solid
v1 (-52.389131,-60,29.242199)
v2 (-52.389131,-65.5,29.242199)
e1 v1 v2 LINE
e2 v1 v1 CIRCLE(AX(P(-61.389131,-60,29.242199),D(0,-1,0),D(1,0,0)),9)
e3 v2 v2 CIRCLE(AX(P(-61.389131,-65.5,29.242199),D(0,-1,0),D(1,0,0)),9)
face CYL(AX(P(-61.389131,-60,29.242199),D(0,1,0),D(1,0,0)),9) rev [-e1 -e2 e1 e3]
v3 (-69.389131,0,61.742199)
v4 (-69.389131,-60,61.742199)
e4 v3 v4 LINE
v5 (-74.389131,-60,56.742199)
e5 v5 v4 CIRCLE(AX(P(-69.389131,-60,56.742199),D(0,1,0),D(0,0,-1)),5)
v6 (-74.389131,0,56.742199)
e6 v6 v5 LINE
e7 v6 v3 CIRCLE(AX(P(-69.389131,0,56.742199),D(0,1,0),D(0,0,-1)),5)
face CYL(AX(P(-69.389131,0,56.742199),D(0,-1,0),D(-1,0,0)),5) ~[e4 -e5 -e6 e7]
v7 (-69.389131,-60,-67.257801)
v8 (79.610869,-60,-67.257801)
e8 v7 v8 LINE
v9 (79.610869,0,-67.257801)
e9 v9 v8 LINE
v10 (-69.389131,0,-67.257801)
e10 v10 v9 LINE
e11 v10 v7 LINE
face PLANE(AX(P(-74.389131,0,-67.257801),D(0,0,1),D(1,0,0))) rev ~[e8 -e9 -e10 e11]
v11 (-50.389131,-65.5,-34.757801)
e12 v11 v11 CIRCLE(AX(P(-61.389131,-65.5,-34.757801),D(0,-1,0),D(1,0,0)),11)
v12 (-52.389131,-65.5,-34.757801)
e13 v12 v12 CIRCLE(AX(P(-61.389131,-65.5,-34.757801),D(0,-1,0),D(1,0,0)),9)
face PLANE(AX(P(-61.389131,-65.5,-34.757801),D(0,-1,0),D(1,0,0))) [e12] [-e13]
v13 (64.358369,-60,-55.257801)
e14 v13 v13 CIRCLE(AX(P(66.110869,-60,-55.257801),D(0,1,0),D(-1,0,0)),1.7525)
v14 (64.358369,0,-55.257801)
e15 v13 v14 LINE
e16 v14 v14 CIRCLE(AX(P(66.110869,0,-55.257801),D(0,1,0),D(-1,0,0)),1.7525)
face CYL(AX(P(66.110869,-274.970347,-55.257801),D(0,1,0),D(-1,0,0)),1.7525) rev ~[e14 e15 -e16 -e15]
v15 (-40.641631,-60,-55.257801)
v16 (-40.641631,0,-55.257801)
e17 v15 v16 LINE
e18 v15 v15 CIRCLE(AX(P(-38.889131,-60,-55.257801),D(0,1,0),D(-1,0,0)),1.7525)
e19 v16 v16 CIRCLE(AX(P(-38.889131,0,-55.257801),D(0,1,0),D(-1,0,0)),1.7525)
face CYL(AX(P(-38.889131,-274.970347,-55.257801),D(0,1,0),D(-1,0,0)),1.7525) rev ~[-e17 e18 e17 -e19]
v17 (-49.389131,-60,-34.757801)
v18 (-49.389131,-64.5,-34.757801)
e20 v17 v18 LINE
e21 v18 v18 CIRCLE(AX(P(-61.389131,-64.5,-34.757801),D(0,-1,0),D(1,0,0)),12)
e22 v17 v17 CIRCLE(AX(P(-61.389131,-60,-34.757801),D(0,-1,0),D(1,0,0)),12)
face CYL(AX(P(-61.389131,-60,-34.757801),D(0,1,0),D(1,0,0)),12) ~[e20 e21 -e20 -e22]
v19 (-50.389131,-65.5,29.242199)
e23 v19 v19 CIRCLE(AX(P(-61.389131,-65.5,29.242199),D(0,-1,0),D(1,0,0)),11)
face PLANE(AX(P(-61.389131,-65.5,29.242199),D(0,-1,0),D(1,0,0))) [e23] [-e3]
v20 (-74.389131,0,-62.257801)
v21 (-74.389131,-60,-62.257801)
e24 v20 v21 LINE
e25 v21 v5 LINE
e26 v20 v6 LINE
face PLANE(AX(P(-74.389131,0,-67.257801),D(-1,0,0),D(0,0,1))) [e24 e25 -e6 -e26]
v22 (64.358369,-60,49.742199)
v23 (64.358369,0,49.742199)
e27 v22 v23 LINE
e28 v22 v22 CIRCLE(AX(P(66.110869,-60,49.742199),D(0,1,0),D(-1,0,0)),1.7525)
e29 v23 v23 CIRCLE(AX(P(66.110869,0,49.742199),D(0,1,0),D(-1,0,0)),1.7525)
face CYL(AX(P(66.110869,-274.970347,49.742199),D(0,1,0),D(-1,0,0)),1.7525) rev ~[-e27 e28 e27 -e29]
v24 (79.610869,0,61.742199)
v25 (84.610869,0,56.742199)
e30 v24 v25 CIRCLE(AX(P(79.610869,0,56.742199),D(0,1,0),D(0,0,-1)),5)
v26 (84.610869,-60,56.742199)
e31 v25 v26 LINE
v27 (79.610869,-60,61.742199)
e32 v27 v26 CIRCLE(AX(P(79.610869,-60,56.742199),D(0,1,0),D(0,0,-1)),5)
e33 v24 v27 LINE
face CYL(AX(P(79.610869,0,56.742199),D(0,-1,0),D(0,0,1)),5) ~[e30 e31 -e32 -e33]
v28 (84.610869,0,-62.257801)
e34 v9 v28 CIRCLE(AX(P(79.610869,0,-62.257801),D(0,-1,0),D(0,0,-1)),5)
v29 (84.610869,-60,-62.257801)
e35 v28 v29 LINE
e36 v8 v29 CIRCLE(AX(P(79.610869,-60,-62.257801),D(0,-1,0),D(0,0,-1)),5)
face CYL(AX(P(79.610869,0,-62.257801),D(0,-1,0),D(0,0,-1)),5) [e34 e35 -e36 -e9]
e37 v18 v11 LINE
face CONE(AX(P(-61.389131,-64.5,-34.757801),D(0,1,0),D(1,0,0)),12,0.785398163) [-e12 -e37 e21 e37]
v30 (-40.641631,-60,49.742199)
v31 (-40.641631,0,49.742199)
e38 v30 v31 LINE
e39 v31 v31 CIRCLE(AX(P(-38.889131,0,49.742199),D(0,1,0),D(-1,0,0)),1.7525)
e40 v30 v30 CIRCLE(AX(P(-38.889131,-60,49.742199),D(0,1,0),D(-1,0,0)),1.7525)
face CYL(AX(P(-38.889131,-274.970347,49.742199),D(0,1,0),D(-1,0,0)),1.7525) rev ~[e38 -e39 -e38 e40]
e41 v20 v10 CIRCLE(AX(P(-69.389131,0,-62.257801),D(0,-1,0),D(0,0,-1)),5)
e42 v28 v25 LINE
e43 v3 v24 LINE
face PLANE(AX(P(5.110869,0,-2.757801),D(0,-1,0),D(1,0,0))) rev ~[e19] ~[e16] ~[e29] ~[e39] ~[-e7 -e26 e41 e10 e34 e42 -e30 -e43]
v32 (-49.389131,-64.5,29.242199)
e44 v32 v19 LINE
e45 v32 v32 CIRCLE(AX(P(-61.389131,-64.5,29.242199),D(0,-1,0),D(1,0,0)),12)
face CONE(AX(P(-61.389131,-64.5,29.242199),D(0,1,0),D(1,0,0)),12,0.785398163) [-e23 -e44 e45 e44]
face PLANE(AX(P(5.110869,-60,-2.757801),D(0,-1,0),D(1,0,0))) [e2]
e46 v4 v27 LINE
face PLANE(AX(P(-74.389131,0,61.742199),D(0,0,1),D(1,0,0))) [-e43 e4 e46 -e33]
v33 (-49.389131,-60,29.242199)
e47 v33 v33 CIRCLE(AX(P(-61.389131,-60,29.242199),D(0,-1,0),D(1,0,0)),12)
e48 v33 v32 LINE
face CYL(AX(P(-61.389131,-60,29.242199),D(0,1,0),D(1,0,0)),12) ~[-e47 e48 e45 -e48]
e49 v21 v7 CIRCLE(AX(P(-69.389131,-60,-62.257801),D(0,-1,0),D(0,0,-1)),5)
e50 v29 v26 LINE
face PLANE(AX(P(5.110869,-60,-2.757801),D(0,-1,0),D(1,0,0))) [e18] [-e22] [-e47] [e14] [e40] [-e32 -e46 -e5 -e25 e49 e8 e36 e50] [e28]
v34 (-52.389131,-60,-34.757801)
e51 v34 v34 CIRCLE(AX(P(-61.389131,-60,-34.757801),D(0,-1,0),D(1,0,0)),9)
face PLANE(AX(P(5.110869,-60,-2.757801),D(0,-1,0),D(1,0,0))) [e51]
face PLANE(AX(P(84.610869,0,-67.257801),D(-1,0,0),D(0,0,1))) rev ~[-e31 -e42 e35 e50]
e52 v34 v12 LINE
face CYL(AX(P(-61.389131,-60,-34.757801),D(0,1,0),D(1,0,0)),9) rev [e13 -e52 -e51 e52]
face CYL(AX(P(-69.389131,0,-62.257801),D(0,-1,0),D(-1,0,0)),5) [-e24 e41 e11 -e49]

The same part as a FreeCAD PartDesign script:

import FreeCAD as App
import Part
import Sketcher

V = App.Vector


def edges_at(feature, points):
    """Names of the edges that pass closest to the given points."""
    edges = feature.Shape.Edges
    near = lambda p: min(range(len(edges)), key=lambda i: edges[i].distToShape(Part.Vertex(*p))[0])
    return sorted({f"Edge{near(p) + 1}" for p in points})


def add_polygon(sketch, points):
    """Adds a closed chain of lines whose ends are joined by coincident constraints."""
    first, n = sketch.GeometryCount, len(points)
    for a, b in zip(points, points[1:] + points[:1]):
        sketch.addGeometry(Part.LineSegment(App.Vector(*a, 0), App.Vector(*b, 0)), False)
    for i in range(n):
        sketch.addConstraint(Sketcher.Constraint("Coincident", first + i, 2, first + (i + 1) % n, 1))

doc = App.newDocument("Part")
params = doc.addObject("Spreadsheet::Sheet", "Params")
for row, (alias, value) in enumerate([
    ("sketch1_width", "159 mm"),
    ("sketch1_height", "129 mm"),
    ("pad1_length", "60 mm"),
    ("sketch2_diameter", "24 mm"),
    ("sketch2_diameter2", "18 mm"),
    ("pad2_length", "5.5 mm"),
    ("fillet_radius", "5 mm"),
    ("hole_diameter", "3.505 mm"),
    ("chamfer_size", "1 mm"),
], start=1):
    params.set(f"A{row}", alias)
    params.set(f"B{row}", "=" + value)
    params.setAlias(f"B{row}", alias)

body = doc.addObject("PartDesign::Body", "Body")

sketch1 = body.newObject("Sketcher::SketchObject", "Sketch")
sketch1.AttachmentSupport = (doc.getObject("XZ_Plane"), [""])
sketch1.MapMode = "FlatFace"
add_polygon(sketch1, [(-74, 62), (-74, -67), (85, -67), (85, 62)])
sketch1.addConstraint([
    Sketcher.Constraint("Vertical", 0),
    Sketcher.Constraint("Horizontal", 1),
    Sketcher.Constraint("Vertical", 2),
    Sketcher.Constraint("Horizontal", 3),
    Sketcher.Constraint("DistanceX", 1, 1, 1, 2, 159.0),
    Sketcher.Constraint("DistanceY", 0, 2, 0, 1, 129.0),
    Sketcher.Constraint("DistanceY", 0, 2, -1, 1, 67.257801),
    Sketcher.Constraint("DistanceX", 0, 2, -1, 1, 74.389131),
])
sketch1.setExpression("Constraints[8]", "Params.sketch1_width")
sketch1.setExpression("Constraints[9]", "Params.sketch1_height")
pad1 = body.newObject("PartDesign::Pad", "Pad")
pad1.Profile = sketch1
pad1.setExpression("Length", "Params.pad1_length")

sketch2 = body.newObject("Sketcher::SketchObject", "Sketch001")
sketch2.AttachmentSupport = (doc.getObject("XZ_Plane"), [""])
sketch2.MapMode = "FlatFace"
sketch2.AttachmentOffset = App.Placement(V(0, 0, 60), App.Rotation())
sketch2.addGeometry([
    Part.Circle(V(-61, 29, 0), V(0, 0, 1), 12),
    Part.Circle(V(-61, 29, 0), V(0, 0, 1), 9),
    Part.Circle(V(-61, -35, 0), V(0, 0, 1), 12),
    Part.Circle(V(-61, -35, 0), V(0, 0, 1), 9),
], False)
sketch2.addConstraint([
    Sketcher.Constraint("Coincident", 1, 3, 0, 3),
    Sketcher.Constraint("Coincident", 3, 3, 2, 3),
    Sketcher.Constraint("Equal", 0, 2),
    Sketcher.Constraint("Equal", 1, 3),
    Sketcher.Constraint("Vertical", 1, 3, 2, 3),
    Sketcher.Constraint("Diameter", 0, 24.0),
    Sketcher.Constraint("Diameter", 1, 18.0),
    Sketcher.Constraint("DistanceY", 2, 3, 0, 3, 64.0),
    Sketcher.Constraint("DistanceY", -1, 1, 0, 3, 29.242199),
    Sketcher.Constraint("DistanceX", 0, 3, -1, 1, 61.389131),
])
sketch2.setExpression("Constraints[5]", "Params.sketch2_diameter")
sketch2.setExpression("Constraints[6]", "Params.sketch2_diameter2")
pad2 = body.newObject("PartDesign::Pad", "Pad001")
pad2.Profile = sketch2
pad2.setExpression("Length", "Params.pad2_length")
doc.recompute()

fillet = body.newObject("PartDesign::Fillet", "Fillet")
fillet.Base = (pad2, edges_at(pad2, [
    (84.611, -30, -67.258),
    (84.611, -30, 61.742),
    (-74.389, -30, 61.742),
    (-74.389, -30, -67.258),
]))
fillet.setExpression("Radius", "Params.fillet_radius")

sketch3 = body.newObject("Sketcher::SketchObject", "Sketch002")
sketch3.AttachmentSupport = (doc.getObject("XZ_Plane"), [""])
sketch3.MapMode = "FlatFace"
sketch3.AttachmentOffset = App.Placement(V(0, 0, 60), App.Rotation())
sketch3.addGeometry([
    Part.Circle(V(-38.9, 49.7, 0), V(0, 0, 1), 1.8),
    Part.Circle(V(66.1, 49.7, 0), V(0, 0, 1), 1.8),
    Part.Circle(V(-38.9, -55.3, 0), V(0, 0, 1), 1.8),
    Part.Circle(V(66.1, -55.3, 0), V(0, 0, 1), 1.8),
], False)
sketch3.addConstraint([
    Sketcher.Constraint("Equal", 0, 1),
    Sketcher.Constraint("Equal", 1, 2),
    Sketcher.Constraint("Equal", 2, 3),
    Sketcher.Constraint("Horizontal", 0, 3, 1, 3),
    Sketcher.Constraint("Horizontal", 2, 3, 3, 3),
    Sketcher.Constraint("Vertical", 0, 3, 2, 3),
    Sketcher.Constraint("Vertical", 1, 3, 3, 3),
    Sketcher.Constraint("Diameter", 0, 3.505),
    Sketcher.Constraint("DistanceX", 0, 3, 1, 3, 105.0),
    Sketcher.Constraint("DistanceY", 2, 3, 0, 3, 105.0),
    Sketcher.Constraint("DistanceY", -1, 1, 0, 3, 49.742199),
    Sketcher.Constraint("DistanceX", 0, 3, -1, 1, 38.889131),
])
doc.recompute()
hole = body.newObject("PartDesign::Hole", "Hole")
hole.Profile = sketch3
hole.ThreadType = "None"
hole.setExpression("Diameter", "Params.hole_diameter")
hole.DepthType = "ThroughAll"
doc.recompute()

chamfer = body.newObject("PartDesign::Chamfer", "Chamfer")
chamfer.Base = (hole, edges_at(hole, [(-73.389, -65.5, 29.242), (-73.389, -65.5, -34.758)]))
chamfer.setExpression("Size", "Params.chamfer_size")

doc.recompute()
